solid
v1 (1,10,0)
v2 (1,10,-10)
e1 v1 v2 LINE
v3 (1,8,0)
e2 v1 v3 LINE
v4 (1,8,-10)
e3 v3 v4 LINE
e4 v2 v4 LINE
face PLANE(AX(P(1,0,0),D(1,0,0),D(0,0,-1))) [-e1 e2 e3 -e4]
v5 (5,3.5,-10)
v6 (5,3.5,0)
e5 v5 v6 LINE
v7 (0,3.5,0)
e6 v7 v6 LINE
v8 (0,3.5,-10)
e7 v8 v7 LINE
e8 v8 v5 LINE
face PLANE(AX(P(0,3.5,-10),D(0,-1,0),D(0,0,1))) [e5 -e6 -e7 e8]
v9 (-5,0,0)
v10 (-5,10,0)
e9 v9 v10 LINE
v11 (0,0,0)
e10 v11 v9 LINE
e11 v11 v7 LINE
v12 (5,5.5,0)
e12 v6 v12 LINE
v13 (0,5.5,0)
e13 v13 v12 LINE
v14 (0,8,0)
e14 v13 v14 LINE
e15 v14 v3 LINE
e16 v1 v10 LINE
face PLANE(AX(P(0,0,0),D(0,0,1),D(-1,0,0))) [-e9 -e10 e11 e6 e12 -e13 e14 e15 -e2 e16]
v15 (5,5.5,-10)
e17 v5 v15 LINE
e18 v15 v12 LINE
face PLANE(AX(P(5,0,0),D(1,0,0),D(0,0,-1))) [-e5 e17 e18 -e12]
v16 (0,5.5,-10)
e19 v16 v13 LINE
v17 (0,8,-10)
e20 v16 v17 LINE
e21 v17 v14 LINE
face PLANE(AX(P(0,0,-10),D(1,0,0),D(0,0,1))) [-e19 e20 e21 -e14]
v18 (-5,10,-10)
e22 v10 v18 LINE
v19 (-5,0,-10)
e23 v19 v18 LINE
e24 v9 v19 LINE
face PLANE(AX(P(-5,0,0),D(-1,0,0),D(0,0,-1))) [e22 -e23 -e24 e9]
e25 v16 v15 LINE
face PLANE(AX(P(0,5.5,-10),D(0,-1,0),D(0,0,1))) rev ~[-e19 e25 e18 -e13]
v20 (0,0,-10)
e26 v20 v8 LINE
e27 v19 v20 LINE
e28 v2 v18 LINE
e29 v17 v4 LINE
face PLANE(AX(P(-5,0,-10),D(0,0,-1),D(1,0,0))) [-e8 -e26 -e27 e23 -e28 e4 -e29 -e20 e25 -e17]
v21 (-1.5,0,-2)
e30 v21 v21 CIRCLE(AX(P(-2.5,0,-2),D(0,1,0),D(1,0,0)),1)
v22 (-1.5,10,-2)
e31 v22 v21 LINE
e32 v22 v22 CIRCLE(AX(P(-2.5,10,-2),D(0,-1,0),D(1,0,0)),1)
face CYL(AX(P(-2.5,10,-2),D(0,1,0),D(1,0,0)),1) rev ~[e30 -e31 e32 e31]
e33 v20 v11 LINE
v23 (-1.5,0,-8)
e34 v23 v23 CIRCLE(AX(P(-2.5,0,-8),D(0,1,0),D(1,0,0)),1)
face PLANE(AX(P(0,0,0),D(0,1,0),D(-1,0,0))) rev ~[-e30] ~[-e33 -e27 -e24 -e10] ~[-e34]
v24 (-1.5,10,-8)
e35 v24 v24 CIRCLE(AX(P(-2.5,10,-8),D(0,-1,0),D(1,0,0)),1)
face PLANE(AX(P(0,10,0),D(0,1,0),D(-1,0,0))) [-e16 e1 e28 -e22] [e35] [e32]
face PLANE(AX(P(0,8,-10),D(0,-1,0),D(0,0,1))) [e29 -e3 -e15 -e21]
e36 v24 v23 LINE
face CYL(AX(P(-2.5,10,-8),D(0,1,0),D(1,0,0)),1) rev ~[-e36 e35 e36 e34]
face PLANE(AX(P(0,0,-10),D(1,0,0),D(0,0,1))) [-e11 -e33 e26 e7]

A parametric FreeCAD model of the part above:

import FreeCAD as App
import Part
import Sketcher

V = App.Vector

doc = App.newDocument("Part")
body = doc.addObject("PartDesign::Body", "Body")

sketch1 = body.newObject("Sketcher::SketchObject", "Sketch")
sketch1.AttachmentSupport = (doc.getObject("XZ_Plane"), [""])
sketch1.MapMode = "FlatFace"
sketch1.addGeometry(Part.LineSegment(V(-5, 0, 0), V(0, 0, 0)), False)
sketch1.addGeometry(Part.LineSegment(V(0, 0, 0), V(0, -10, 0)), False)
sketch1.addGeometry(Part.LineSegment(V(0, -10, 0), V(-5, -10, 0)), False)
sketch1.addGeometry(Part.LineSegment(V(-5, -10, 0), V(-5, 0, 0)), False)
sketch1.addConstraint(Sketcher.Constraint("Coincident", 0, 2, 1, 1))
sketch1.addConstraint(Sketcher.Constraint("Coincident", 1, 2, 2, 1))
sketch1.addConstraint(Sketcher.Constraint("Coincident", 2, 2, 3, 1))
sketch1.addConstraint(Sketcher.Constraint("Coincident", 3, 2, 0, 1))
sketch1.addConstraint(Sketcher.Constraint("Horizontal", 0))
sketch1.addConstraint(Sketcher.Constraint("Vertical", 1))
sketch1.addConstraint(Sketcher.Constraint("Horizontal", 2))
sketch1.addConstraint(Sketcher.Constraint("Vertical", 3))
sketch1.addConstraint(Sketcher.Constraint("Coincident", 0, 2, -1, 1))
sketch1.addConstraint(Sketcher.Constraint("DistanceX", 0, 1, 0, 2, 5.0))
sketch1.addConstraint(Sketcher.Constraint("DistanceY", 1, 2, 1, 1, 10.0))
pad1 = body.newObject("PartDesign::Pad", "Pad")
pad1.Profile = sketch1
pad1.Length = 10
pad1.Reversed = True

sketch2 = body.newObject("Sketcher::SketchObject", "Sketch001")
sketch2.AttachmentSupport = (doc.getObject("YZ_Plane"), [""])
sketch2.MapMode = "FlatFace"
sketch2.addGeometry(Part.LineSegment(V(8, -10, 0), V(10, -10, 0)), False)
sketch2.addGeometry(Part.LineSegment(V(10, -10, 0), V(10, 0, 0)), False)
sketch2.addGeometry(Part.LineSegment(V(10, 0, 0), V(8, 0, 0)), False)
sketch2.addGeometry(Part.LineSegment(V(8, 0, 0), V(8, -10, 0)), False)
sketch2.addGeometry(Part.LineSegment(V(3.5, -10, 0), V(5.5, -10, 0)), False)
sketch2.addGeometry(Part.LineSegment(V(5.5, -10, 0), V(5.5, 0, 0)), False)
sketch2.addGeometry(Part.LineSegment(V(5.5, 0, 0), V(3.5, 0, 0)), False)
sketch2.addGeometry(Part.LineSegment(V(3.5, 0, 0), V(3.5, -10, 0)), False)
sketch2.addConstraint(Sketcher.Constraint("Coincident", 0, 2, 1, 1))
sketch2.addConstraint(Sketcher.Constraint("Coincident", 1, 2, 2, 1))
sketch2.addConstraint(Sketcher.Constraint("Coincident", 2, 2, 3, 1))
sketch2.addConstraint(Sketcher.Constraint("Coincident", 3, 2, 0, 1))
sketch2.addConstraint(Sketcher.Constraint("Coincident", 4, 2, 5, 1))
sketch2.addConstraint(Sketcher.Constraint("Coincident", 5, 2, 6, 1))
sketch2.addConstraint(Sketcher.Constraint("Coincident", 6, 2, 7, 1))
sketch2.addConstraint(Sketcher.Constraint("Coincident", 7, 2, 4, 1))
sketch2.addConstraint(Sketcher.Constraint("Horizontal", 0))
sketch2.addConstraint(Sketcher.Constraint("Vertical", 1))
sketch2.addConstraint(Sketcher.Constraint("Horizontal", 2))
sketch2.addConstraint(Sketcher.Constraint("Vertical", 3))
sketch2.addConstraint(Sketcher.Constraint("Horizontal", 4))
sketch2.addConstraint(Sketcher.Constraint("Vertical", 5))
sketch2.addConstraint(Sketcher.Constraint("Horizontal", 6))
sketch2.addConstraint(Sketcher.Constraint("Vertical", 7))
sketch2.addConstraint(Sketcher.Constraint("PointOnObject", 1, 2, -1))
sketch2.addConstraint(Sketcher.Constraint("PointOnObject", 5, 2, -1))
sketch2.addConstraint(Sketcher.Constraint("Horizontal", 3, 2, 4, 2))
sketch2.addConstraint(Sketcher.Constraint("Equal", 2, 4))
sketch2.addConstraint(Sketcher.Constraint("DistanceX", 0, 1, 0, 2, 2.0))
sketch2.addConstraint(Sketcher.Constraint("DistanceX", 4, 2, 3, 2, 2.5))
sketch2.addConstraint(Sketcher.Constraint("DistanceY", 1, 1, 1, 2, 10.0))
sketch2.addConstraint(Sketcher.Constraint("DistanceX", -1, 1, 0, 2, 10.0))
pad2 = body.newObject("PartDesign::Pad", "Pad001")
pad2.Profile = sketch2
pad2.Length = 5

sketch3 = body.newObject("Sketcher::SketchObject", "Sketch002")
sketch3.AttachmentSupport = (doc.getObject("XZ_Plane"), [""])
sketch3.MapMode = "FlatFace"
sketch3.AttachmentOffset = App.Placement(V(0, 0, -10), App.Rotation())
sketch3.addGeometry(Part.Circle(V(-2.5, -8, 0), V(0, 0, 1), 1), False)
sketch3.addGeometry(Part.Circle(V(-2.5, -2, 0), V(0, 0, 1), 1), False)
sketch3.addConstraint(Sketcher.Constraint("Equal", 0, 1))
sketch3.addConstraint(Sketcher.Constraint("Vertical", 0, 3, 1, 3))
sketch3.addConstraint(Sketcher.Constraint("Diameter", 0, 2.0))
sketch3.addConstraint(Sketcher.Constraint("DistanceY", 1, 3, -1, 1, 2.0))
sketch3.addConstraint(Sketcher.Constraint("DistanceX", 0, 3, -1, 1, 2.5))
sketch3.addConstraint(Sketcher.Constraint("DistanceY", 0, 3, -1, 1, 8.0))
pocket1 = body.newObject("PartDesign::Pocket", "Pocket")
pocket1.Profile = sketch3
pocket1.Length = 20
pocket1.Reversed = True

sketch4 = body.newObject("Sketcher::SketchObject", "Sketch003")
sketch4.AttachmentSupport = (doc.getObject("YZ_Plane"), [""])
sketch4.MapMode = "FlatFace"
sketch4.AttachmentOffset = App.Placement(V(0, 0, 5), App.Rotation())
sketch4.addGeometry(Part.LineSegment(V(10, -10, 0), V(10, 0, 0)), False)
sketch4.addGeometry(Part.LineSegment(V(10, 0, 0), V(8, 0, 0)), False)
sketch4.addGeometry(Part.LineSegment(V(8, 0, 0), V(8, -10, 0)), False)
sketch4.addGeometry(Part.LineSegment(V(8, -10, 0), V(10, -10, 0)), False)
sketch4.addConstraint(Sketcher.Constraint("Coincident", 0, 2, 1, 1))
sketch4.addConstraint(Sketcher.Constraint("Coincident", 1, 2, 2, 1))
sketch4.addConstraint(Sketcher.Constraint("Coincident", 2, 2, 3, 1))
sketch4.addConstraint(Sketcher.Constraint("Coincident", 3, 2, 0, 1))
sketch4.addConstraint(Sketcher.Constraint("Vertical", 0))
sketch4.addConstraint(Sketcher.Constraint("Horizontal", 1))
sketch4.addConstraint(Sketcher.Constraint("Vertical", 2))
sketch4.addConstraint(Sketcher.Constraint("Horizontal", 3))
sketch4.addConstraint(Sketcher.Constraint("PointOnObject", 0, 2, -1))
sketch4.addConstraint(Sketcher.Constraint("DistanceX", 1, 2, 1, 1, 2.0))
sketch4.addConstraint(Sketcher.Constraint("DistanceY", 0, 1, 0, 2, 10.0))
sketch4.addConstraint(Sketcher.Constraint("DistanceX", -1, 1, 0, 2, 10.0))
pocket2 = body.newObject("PartDesign::Pocket", "Pocket001")
pocket2.Profile = sketch4
pocket2.Length = 4

doc.recompute()
